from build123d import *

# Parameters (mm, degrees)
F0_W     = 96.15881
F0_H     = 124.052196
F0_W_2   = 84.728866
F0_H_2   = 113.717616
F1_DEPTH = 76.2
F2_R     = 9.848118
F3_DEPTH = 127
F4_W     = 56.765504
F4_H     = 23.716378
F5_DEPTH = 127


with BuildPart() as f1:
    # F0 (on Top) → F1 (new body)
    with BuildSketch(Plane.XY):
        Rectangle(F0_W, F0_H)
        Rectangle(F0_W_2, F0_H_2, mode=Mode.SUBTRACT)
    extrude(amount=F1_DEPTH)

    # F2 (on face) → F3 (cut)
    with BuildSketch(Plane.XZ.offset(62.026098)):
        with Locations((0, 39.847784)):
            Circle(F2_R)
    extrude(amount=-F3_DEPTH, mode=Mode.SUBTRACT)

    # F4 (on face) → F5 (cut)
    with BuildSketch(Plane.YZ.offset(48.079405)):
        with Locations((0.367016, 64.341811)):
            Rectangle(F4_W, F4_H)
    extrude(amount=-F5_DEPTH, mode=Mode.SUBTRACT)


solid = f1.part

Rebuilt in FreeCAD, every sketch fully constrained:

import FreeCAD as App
import Part
import Sketcher

V = App.Vector
Q = App.Units.Quantity

doc = App.newDocument("Part")
body = doc.addObject("PartDesign::Body", "Body")

# Sketch on XY plane
sketch1 = doc.addObject("Sketcher::SketchObject", "Sketch")
body.addObject(sketch1)
sketch1.AttachmentSupport = (doc.XY_Plane, [""])
sketch1.MapMode = "FlatFace"
sketch1.addGeometry([
    Part.LineSegment(V(-48, 62, 0), V(-48, -62, 0)),  # 0
    Part.LineSegment(V(-48, -62, 0), V(48, -62, 0)),  # 1
    Part.LineSegment(V(48, -62, 0), V(48, 62, 0)),  # 2
    Part.LineSegment(V(48, 62, 0), V(-48, 62, 0)),  # 3
    Part.LineSegment(V(42, -57, 0), V(-42, -57, 0)),  # 4
    Part.LineSegment(V(-42, -57, 0), V(-42, 57, 0)),  # 5
    Part.LineSegment(V(-42, 57, 0), V(42, 57, 0)),  # 6
    Part.LineSegment(V(42, 57, 0), V(42, -57, 0)),  # 7
], False)
sketch1.addConstraint([
    Sketcher.Constraint("Coincident", 0, 2, 1, 1),
    Sketcher.Constraint("Coincident", 1, 2, 2, 1),
    Sketcher.Constraint("Coincident", 2, 2, 3, 1),
    Sketcher.Constraint("Coincident", 3, 2, 0, 1),
    Sketcher.Constraint("Coincident", 4, 2, 5, 1),
    Sketcher.Constraint("Coincident", 5, 2, 6, 1),
    Sketcher.Constraint("Coincident", 6, 2, 7, 1),
    Sketcher.Constraint("Coincident", 7, 2, 4, 1),
    Sketcher.Constraint("Vertical", 0),
    Sketcher.Constraint("Horizontal", 1),
    Sketcher.Constraint("Vertical", 2),
    Sketcher.Constraint("Horizontal", 3),
    Sketcher.Constraint("Horizontal", 4),
    Sketcher.Constraint("Vertical", 5),
    Sketcher.Constraint("Horizontal", 6),
    Sketcher.Constraint("Vertical", 7),
    Sketcher.Constraint("Symmetric", 0, 2, 2, 2, -1, 1),
    Sketcher.Constraint("Symmetric", 4, 2, 6, 2, -1, 1),
    Sketcher.Constraint("DistanceX", 1, 1, 1, 2, Q("96.15881 mm")),
    Sketcher.Constraint("DistanceX", 4, 2, 4, 1, Q("84.728866 mm")),
    Sketcher.Constraint("DistanceY", 0, 2, 0, 1, Q("124.052196 mm")),
    Sketcher.Constraint("DistanceY", 5, 1, 5, 2, Q("113.717616 mm")),
])
pad1 = doc.addObject("PartDesign::Pad", "Pad")
body.addObject(pad1)
pad1.Profile = sketch1
pad1.Length = Q("3 in")

# Sketch on XZ plane
sketch2 = doc.addObject("Sketcher::SketchObject", "Sketch001")
body.addObject(sketch2)
sketch2.AttachmentSupport = (doc.XZ_Plane, [""])
sketch2.MapMode = "FlatFace"
sketch2.AttachmentOffset = App.Placement(V(0, 0, 62.026098), App.Rotation())
sketch2.addGeometry(Part.Circle(V(0, 40, 0), V(0, 0, 1), 10), False)
sketch2.addConstraint([
    Sketcher.Constraint("PointOnObject", 0, 3, -2),
    Sketcher.Constraint("Diameter", 0, Q("19.696236 mm")),
    Sketcher.Constraint("DistanceY", -1, 1, 0, 3, Q("39.847784 mm")),
])
pocket1 = doc.addObject("PartDesign::Pocket", "Pocket")
body.addObject(pocket1)
pocket1.Profile = sketch2
pocket1.Length = Q("5 in")

# Sketch on YZ plane
sketch3 = doc.addObject("Sketcher::SketchObject", "Sketch002")
body.addObject(sketch3)
sketch3.AttachmentSupport = (doc.YZ_Plane, [""])
sketch3.MapMode = "FlatFace"
sketch3.AttachmentOffset = App.Placement(V(0, 0, 48.079405), App.Rotation())
sketch3.addGeometry([
    Part.LineSegment(V(-28, 76, 0), V(-28, 52, 0)),
    Part.LineSegment(V(-28, 52, 0), V(29, 52, 0)),
    Part.LineSegment(V(29, 52, 0), V(29, 76, 0)),
    Part.LineSegment(V(29, 76, 0), V(-28, 76, 0)),
], False)
sketch3.addConstraint([
    Sketcher.Constraint("Coincident", 0, 2, 1, 1),
    Sketcher.Constraint("Coincident", 1, 2, 2, 1),
    Sketcher.Constraint("Coincident", 2, 2, 3, 1),
    Sketcher.Constraint("Coincident", 3, 2, 0, 1),
    Sketcher.Constraint("Vertical", 0),
    Sketcher.Constraint("Horizontal", 1),
    Sketcher.Constraint("Vertical", 2),
    Sketcher.Constraint("Horizontal", 3),
    Sketcher.Constraint("DistanceY", -1, 1, 2, 2, Q("3 in")),
    Sketcher.Constraint("DistanceY", 0, 2, 0, 1, Q("23.716378 mm")),
    Sketcher.Constraint("DistanceX", 1, 1, 1, 2, Q("56.765504 mm")),
    Sketcher.Constraint("DistanceX", 0, 2, -1, 1, Q("28.015736 mm")),
])
pocket2 = doc.addObject("PartDesign::Pocket", "Pocket001")
body.addObject(pocket2)
pocket2.Profile = sketch3
pocket2.Length = Q("5 in")

doc.recompute()
